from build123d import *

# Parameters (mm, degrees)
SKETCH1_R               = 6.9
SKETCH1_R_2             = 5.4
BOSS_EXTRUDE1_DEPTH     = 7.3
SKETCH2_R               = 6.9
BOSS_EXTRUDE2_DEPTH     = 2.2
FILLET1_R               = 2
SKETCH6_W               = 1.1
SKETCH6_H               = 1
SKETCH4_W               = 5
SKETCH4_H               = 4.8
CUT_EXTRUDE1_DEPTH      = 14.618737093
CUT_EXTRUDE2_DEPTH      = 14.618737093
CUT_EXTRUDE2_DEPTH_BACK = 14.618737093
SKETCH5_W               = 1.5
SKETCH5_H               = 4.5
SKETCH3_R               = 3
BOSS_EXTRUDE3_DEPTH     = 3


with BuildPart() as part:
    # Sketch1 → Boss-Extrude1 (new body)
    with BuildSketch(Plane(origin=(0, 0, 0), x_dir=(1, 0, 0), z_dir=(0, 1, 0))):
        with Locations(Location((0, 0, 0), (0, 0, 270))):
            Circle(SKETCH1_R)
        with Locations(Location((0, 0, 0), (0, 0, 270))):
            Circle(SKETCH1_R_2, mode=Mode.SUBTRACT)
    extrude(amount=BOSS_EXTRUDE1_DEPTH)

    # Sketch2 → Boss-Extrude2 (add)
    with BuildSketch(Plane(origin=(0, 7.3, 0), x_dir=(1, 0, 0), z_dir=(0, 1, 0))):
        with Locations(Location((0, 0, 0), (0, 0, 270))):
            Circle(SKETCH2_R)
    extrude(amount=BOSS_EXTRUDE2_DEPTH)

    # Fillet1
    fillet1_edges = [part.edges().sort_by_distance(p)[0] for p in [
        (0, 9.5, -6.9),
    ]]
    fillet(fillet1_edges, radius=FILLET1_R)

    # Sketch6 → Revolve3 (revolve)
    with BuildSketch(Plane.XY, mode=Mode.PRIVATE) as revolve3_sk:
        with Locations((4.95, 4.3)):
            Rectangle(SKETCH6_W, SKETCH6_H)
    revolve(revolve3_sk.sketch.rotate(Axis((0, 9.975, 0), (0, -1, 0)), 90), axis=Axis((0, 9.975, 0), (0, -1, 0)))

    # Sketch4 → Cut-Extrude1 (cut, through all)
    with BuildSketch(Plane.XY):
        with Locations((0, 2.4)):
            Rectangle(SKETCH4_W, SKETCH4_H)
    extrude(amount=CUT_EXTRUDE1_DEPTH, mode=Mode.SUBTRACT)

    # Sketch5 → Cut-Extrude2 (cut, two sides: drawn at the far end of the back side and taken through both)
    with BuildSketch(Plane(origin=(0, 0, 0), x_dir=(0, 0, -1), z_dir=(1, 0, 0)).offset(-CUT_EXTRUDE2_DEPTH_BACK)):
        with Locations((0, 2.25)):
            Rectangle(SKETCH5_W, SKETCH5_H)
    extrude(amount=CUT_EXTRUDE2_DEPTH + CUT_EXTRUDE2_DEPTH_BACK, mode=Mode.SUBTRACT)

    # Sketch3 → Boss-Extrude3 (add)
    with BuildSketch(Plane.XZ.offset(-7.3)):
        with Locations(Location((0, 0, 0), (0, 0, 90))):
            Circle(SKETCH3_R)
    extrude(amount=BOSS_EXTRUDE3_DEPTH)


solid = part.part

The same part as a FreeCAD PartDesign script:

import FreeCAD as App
import Part
import Sketcher

V = App.Vector
Q = App.Units.Quantity


def edges_at(feature, points):
    """Names of the edges that pass closest to the given points."""
    edges = feature.Shape.Edges
    near = lambda p: min(range(len(edges)), key=lambda i: edges[i].distToShape(Part.Vertex(*p))[0])
    return sorted({f"Edge{near(p) + 1}" for p in points})

doc = App.newDocument("Part")
body = doc.addObject("PartDesign::Body", "Body")

# Sketch on XZ plane
sketch1 = doc.addObject("Sketcher::SketchObject", "Sketch")
body.addObject(sketch1)
sketch1.AttachmentSupport = (doc.XZ_Plane, [""])
sketch1.MapMode = "FlatFace"
sketch1.addGeometry(Part.Circle(V(0, 0, 0), V(0, 0, 1), 6.9), False)
sketch1.addGeometry(Part.Circle(V(0, 0, 0), V(0, 0, 1), 5.4), False)
sketch1.addConstraint(Sketcher.Constraint("Coincident", 0, 3, -1, 1))
sketch1.addConstraint(Sketcher.Constraint("Coincident", 1, 3, -1, 1))
sketch1.addConstraint(Sketcher.Constraint("Diameter", 0, Q("13.8 mm")))
sketch1.addConstraint(Sketcher.Constraint("Diameter", 1, Q("10.8 mm")))
pad1 = doc.addObject("PartDesign::Pad", "Pad")
body.addObject(pad1)
pad1.Profile = sketch1
pad1.Length = 7.3
pad1.Reversed = True

# Sketch on XZ plane
sketch2 = doc.addObject("Sketcher::SketchObject", "Sketch001")
body.addObject(sketch2)
sketch2.AttachmentSupport = (doc.XZ_Plane, [""])
sketch2.MapMode = "FlatFace"
sketch2.AttachmentOffset = App.Placement(V(0, 0, -7.3), App.Rotation())
sketch2.addGeometry(Part.Circle(V(0, 0, 0), V(0, 0, 1), 6.9), False)
sketch2.addConstraint(Sketcher.Constraint("Coincident", 0, 3, -1, 1))
sketch2.addConstraint(Sketcher.Constraint("Diameter", 0, Q("13.8 mm")))
pad2 = doc.addObject("PartDesign::Pad", "Pad001")
body.addObject(pad2)
pad2.Profile = sketch2
pad2.Length = 2.2
pad2.Reversed = True
doc.recompute()

fillet = doc.addObject("PartDesign::Fillet", "Fillet")
body.addObject(fillet)
fillet.Base = (pad2, edges_at(pad2, [(0, 9.5, -6.9)]))
fillet.Radius = 2

# Sketch on XY plane
sketch3 = doc.addObject("Sketcher::SketchObject", "Sketch002")
body.addObject(sketch3)
sketch3.AttachmentSupport = (doc.XY_Plane, [""])
sketch3.MapMode = "FlatFace"
sketch3.addGeometry(Part.LineSegment(V(4.4, 4.8, 0), V(4.4, 3.8, 0)), False)
sketch3.addGeometry(Part.LineSegment(V(4.4, 3.8, 0), V(5.5, 3.8, 0)), False)
sketch3.addGeometry(Part.LineSegment(V(5.5, 3.8, 0), V(5.5, 4.8, 0)), False)
sketch3.addGeometry(Part.LineSegment(V(5.5, 4.8, 0), V(4.4, 4.8, 0)), False)
sketch3.addConstraint(Sketcher.Constraint("Coincident", 0, 2, 1, 1))
sketch3.addConstraint(Sketcher.Constraint("Coincident", 1, 2, 2, 1))
sketch3.addConstraint(Sketcher.Constraint("Coincident", 2, 2, 3, 1))
sketch3.addConstraint(Sketcher.Constraint("Coincident", 3, 2, 0, 1))
sketch3.addConstraint(Sketcher.Constraint("Vertical", 0))
sketch3.addConstraint(Sketcher.Constraint("Horizontal", 1))
sketch3.addConstraint(Sketcher.Constraint("Vertical", 2))
sketch3.addConstraint(Sketcher.Constraint("Horizontal", 3))
sketch3.addConstraint(Sketcher.Constraint("DistanceY", 0, 2, 0, 1, Q("1 mm")))
sketch3.addConstraint(Sketcher.Constraint("DistanceX", 1, 1, 1, 2, Q("1.1 mm")))
sketch3.addConstraint(Sketcher.Constraint("DistanceX", -1, 1, 0, 2, Q("4.4 mm")))
sketch3.addConstraint(Sketcher.Constraint("DistanceY", -1, 1, 0, 2, Q("3.8 mm")))
revolution = doc.addObject("PartDesign::Revolution", "Revolution")
body.addObject(revolution)
revolution.Profile = sketch3
revolution.ReferenceAxis = (sketch3, ["V_Axis"])
revolution.Angle = 360

# Sketch on XY plane
sketch4 = doc.addObject("Sketcher::SketchObject", "Sketch003")
body.addObject(sketch4)
sketch4.AttachmentSupport = (doc.XY_Plane, [""])
sketch4.MapMode = "FlatFace"
sketch4.addGeometry(Part.LineSegment(V(-2.5, 4.8, 0), V(-2.5, 0, 0)), False)
sketch4.addGeometry(Part.LineSegment(V(-2.5, 0, 0), V(2.5, 0, 0)), False)
sketch4.addGeometry(Part.LineSegment(V(2.5, 0, 0), V(2.5, 4.8, 0)), False)
sketch4.addGeometry(Part.LineSegment(V(2.5, 4.8, 0), V(-2.5, 4.8, 0)), False)
sketch4.addConstraint(Sketcher.Constraint("Coincident", 0, 2, 1, 1))
sketch4.addConstraint(Sketcher.Constraint("Coincident", 1, 2, 2, 1))
sketch4.addConstraint(Sketcher.Constraint("Coincident", 2, 2, 3, 1))
sketch4.addConstraint(Sketcher.Constraint("Coincident", 3, 2, 0, 1))
sketch4.addConstraint(Sketcher.Constraint("Vertical", 0))
sketch4.addConstraint(Sketcher.Constraint("Horizontal", 1))
sketch4.addConstraint(Sketcher.Constraint("Vertical", 2))
sketch4.addConstraint(Sketcher.Constraint("Horizontal", 3))
sketch4.addConstraint(Sketcher.Constraint("Symmetric", 0, 2, 1, 2, -1, 1))
sketch4.addConstraint(Sketcher.Constraint("DistanceX", 1, 1, 1, 2, Q("5 mm")))
sketch4.addConstraint(Sketcher.Constraint("DistanceY", 0, 2, 0, 1, Q("4.8 mm")))
pocket1 = doc.addObject("PartDesign::Pocket", "Pocket")
body.addObject(pocket1)
pocket1.Profile = sketch4
pocket1.Type = "ThroughAll"
pocket1.Reversed = True

# Sketch on YZ plane
sketch5 = doc.addObject("Sketcher::SketchObject", "Sketch004")
body.addObject(sketch5)
sketch5.AttachmentSupport = (doc.YZ_Plane, [""])
sketch5.MapMode = "FlatFace"
sketch5.addGeometry(Part.LineSegment(V(4.5, 0.75, 0), V(0, 0.75, 0)), False)
sketch5.addGeometry(Part.LineSegment(V(0, 0.75, 0), V(0, -0.75, 0)), False)
sketch5.addGeometry(Part.LineSegment(V(0, -0.75, 0), V(4.5, -0.75, 0)), False)
sketch5.addGeometry(Part.LineSegment(V(4.5, -0.75, 0), V(4.5, 0.75, 0)), False)
sketch5.addConstraint(Sketcher.Constraint("Coincident", 0, 2, 1, 1))
sketch5.addConstraint(Sketcher.Constraint("Coincident", 1, 2, 2, 1))
sketch5.addConstraint(Sketcher.Constraint("Coincident", 2, 2, 3, 1))
sketch5.addConstraint(Sketcher.Constraint("Coincident", 3, 2, 0, 1))
sketch5.addConstraint(Sketcher.Constraint("Horizontal", 0))
sketch5.addConstraint(Sketcher.Constraint("Vertical", 1))
sketch5.addConstraint(Sketcher.Constraint("Horizontal", 2))
sketch5.addConstraint(Sketcher.Constraint("Vertical", 3))
sketch5.addConstraint(Sketcher.Constraint("Symmetric", 0, 2, 1, 2, -1, 1))
sketch5.addConstraint(Sketcher.Constraint("DistanceX", 0, 2, 0, 1, Q("4.5 mm")))
sketch5.addConstraint(Sketcher.Constraint("DistanceY", 1, 2, 1, 1, Q("1.5 mm")))
pocket2 = doc.addObject("PartDesign::Pocket", "Pocket001")
body.addObject(pocket2)
pocket2.Profile = sketch5
pocket2.Type = "ThroughAll"
pocket2.Midplane = True

# Sketch on XZ plane
sketch6 = doc.addObject("Sketcher::SketchObject", "Sketch005")
body.addObject(sketch6)
sketch6.AttachmentSupport = (doc.XZ_Plane, [""])
sketch6.MapMode = "FlatFace"
sketch6.AttachmentOffset = App.Placement(V(0, 0, -7.3), App.Rotation())
sketch6.addGeometry(Part.Circle(V(0, 0, 0), V(0, 0, 1), 3), False)
sketch6.addConstraint(Sketcher.Constraint("Coincident", 0, 3, -1, 1))
sketch6.addConstraint(Sketcher.Constraint("Diameter", 0, Q("6 mm")))
pad3 = doc.addObject("PartDesign::Pad", "Pad002")
body.addObject(pad3)
pad3.Profile = sketch6
pad3.Length = 3

doc.recompute()
